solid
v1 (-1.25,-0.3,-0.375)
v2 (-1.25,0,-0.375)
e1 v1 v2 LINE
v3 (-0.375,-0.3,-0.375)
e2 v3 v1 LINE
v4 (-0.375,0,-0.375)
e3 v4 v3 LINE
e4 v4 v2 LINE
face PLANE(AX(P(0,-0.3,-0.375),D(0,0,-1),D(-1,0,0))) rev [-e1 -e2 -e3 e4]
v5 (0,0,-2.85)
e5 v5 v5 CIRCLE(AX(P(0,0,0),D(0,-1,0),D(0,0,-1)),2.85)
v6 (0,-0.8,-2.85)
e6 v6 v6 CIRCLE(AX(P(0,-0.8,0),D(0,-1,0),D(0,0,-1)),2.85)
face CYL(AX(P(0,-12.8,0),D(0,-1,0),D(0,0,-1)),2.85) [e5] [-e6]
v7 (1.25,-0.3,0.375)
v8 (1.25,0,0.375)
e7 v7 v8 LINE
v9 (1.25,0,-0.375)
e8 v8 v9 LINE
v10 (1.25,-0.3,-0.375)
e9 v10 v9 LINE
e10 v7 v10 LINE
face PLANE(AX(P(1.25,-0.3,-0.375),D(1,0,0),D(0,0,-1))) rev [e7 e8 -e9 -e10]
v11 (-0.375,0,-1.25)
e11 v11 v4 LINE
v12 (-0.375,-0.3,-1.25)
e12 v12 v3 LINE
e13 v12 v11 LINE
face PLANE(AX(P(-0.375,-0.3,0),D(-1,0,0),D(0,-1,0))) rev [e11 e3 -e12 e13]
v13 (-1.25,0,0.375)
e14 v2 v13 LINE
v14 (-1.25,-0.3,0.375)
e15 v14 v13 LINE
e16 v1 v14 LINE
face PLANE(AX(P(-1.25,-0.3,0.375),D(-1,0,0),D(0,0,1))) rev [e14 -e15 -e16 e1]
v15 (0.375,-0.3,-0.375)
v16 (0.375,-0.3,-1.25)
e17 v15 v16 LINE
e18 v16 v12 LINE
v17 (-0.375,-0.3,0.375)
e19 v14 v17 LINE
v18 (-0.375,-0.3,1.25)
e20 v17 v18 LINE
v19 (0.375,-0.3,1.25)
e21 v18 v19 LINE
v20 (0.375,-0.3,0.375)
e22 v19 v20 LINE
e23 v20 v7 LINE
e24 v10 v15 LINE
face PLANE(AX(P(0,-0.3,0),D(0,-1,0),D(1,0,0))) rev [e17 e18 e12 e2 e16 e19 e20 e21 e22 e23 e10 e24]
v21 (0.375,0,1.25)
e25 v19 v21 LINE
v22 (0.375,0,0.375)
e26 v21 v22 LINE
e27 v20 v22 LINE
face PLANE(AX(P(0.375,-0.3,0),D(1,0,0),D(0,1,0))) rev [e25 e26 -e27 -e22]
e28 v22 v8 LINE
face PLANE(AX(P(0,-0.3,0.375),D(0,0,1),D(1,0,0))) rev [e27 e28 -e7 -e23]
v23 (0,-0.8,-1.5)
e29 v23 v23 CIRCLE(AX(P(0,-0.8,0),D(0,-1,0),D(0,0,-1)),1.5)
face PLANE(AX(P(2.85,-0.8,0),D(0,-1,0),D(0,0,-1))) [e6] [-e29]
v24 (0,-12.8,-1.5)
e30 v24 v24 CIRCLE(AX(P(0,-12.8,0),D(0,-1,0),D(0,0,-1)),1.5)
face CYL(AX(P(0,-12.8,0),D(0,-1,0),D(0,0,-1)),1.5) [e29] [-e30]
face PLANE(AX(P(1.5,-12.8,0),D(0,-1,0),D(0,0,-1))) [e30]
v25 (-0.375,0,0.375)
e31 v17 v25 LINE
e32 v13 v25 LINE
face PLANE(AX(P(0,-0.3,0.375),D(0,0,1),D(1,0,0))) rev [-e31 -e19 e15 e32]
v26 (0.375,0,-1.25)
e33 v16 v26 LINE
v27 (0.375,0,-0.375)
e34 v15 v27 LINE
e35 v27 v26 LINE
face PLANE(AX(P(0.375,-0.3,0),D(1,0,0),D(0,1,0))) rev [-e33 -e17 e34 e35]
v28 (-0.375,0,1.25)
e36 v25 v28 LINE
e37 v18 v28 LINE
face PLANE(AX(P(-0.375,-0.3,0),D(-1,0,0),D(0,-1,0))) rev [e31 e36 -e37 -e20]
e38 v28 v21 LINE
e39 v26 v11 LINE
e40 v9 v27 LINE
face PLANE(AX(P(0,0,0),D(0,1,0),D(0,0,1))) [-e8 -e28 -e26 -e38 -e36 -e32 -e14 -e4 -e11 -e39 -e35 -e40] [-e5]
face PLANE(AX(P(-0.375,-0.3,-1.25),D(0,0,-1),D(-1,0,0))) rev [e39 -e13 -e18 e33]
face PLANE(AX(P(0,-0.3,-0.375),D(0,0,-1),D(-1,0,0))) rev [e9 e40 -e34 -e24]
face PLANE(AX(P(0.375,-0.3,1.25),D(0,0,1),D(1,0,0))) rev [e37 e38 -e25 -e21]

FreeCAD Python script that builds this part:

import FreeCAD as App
import Part
import Sketcher
Q = App.Units.Quantity


def add_polygon(sketch, points):
    """Adds a closed chain of lines whose ends are joined by coincident constraints."""
    first, n = sketch.GeometryCount, len(points)
    for a, b in zip(points, points[1:] + points[:1]):
        sketch.addGeometry(Part.LineSegment(App.Vector(*a, 0), App.Vector(*b, 0)), False)
    for i in range(n):
        sketch.addConstraint(Sketcher.Constraint("Coincident", first + i, 2, first + (i + 1) % n, 1))

doc = App.newDocument("Part")
body = doc.addObject("PartDesign::Body", "Body")

sketch1 = body.newObject("Sketcher::SketchObject", "Sketch")
sketch1.AttachmentSupport = (doc.getObject("XY_Plane"), [""])
sketch1.MapMode = "FlatFace"
add_polygon(sketch1, [(2.85, 0), (0, 0), (0, -12.8), (1.5, -12.8), (1.5, -0.8), (2.85, -0.8)])
sketch1.addConstraint([
    Sketcher.Constraint("Horizontal", 0),
    Sketcher.Constraint("Vertical", 1),
    Sketcher.Constraint("Horizontal", 2),
    Sketcher.Constraint("Vertical", 3),
    Sketcher.Constraint("Horizontal", 4),
    Sketcher.Constraint("Vertical", 5),
    Sketcher.Constraint("Coincident", 0, 2, -1, 1),
    Sketcher.Constraint("DistanceY", 3, 1, 3, 2, Q("12 mm")),
    Sketcher.Constraint("DistanceX", 2, 1, 2, 2, Q("1.5 mm")),
    Sketcher.Constraint("DistanceY", 1, 2, 1, 1, Q("12.8 mm")),
    Sketcher.Constraint("DistanceX", 0, 2, 0, 1, Q("2.85 mm")),
])
revolution = body.newObject("PartDesign::Revolution", "Revolution")
revolution.Profile = sketch1
revolution.ReferenceAxis = (sketch1, ["V_Axis"])
revolution.Angle = 360

sketch2 = body.newObject("Sketcher::SketchObject", "Sketch001")
sketch2.AttachmentSupport = (doc.getObject("XZ_Plane"), [""])
sketch2.MapMode = "FlatFace"
add_polygon(sketch2, [(-0.375, -1.25), (-0.375, 0), (0.375, 0), (0.375, -1.25)])
sketch2.addConstraint([
    Sketcher.Constraint("Vertical", 0),
    Sketcher.Constraint("Horizontal", 1),
    Sketcher.Constraint("Vertical", 2),
    Sketcher.Constraint("Horizontal", 3),
    Sketcher.Constraint("Symmetric", 0, 2, 1, 2, -1, 1),
    Sketcher.Constraint("DistanceX", 1, 1, 1, 2, Q("0.75 mm")),
    Sketcher.Constraint("DistanceY", 0, 1, 0, 2, Q("1.25 mm")),
])
pocket1 = body.newObject("PartDesign::Pocket", "Pocket")
pocket1.Profile = sketch2
pocket1.Length = 0.3
pocket1.Reversed = True
doc.recompute()

polarpattern = body.newObject("PartDesign::PolarPattern", "PolarPattern")
polarpattern.Originals = [pocket1]
polarpattern.Axis = (doc.getObject("Y_Axis"), [""])
polarpattern.Angle = 360
polarpattern.Occurrences = 4
body.Tip = polarpattern

doc.recompute()
